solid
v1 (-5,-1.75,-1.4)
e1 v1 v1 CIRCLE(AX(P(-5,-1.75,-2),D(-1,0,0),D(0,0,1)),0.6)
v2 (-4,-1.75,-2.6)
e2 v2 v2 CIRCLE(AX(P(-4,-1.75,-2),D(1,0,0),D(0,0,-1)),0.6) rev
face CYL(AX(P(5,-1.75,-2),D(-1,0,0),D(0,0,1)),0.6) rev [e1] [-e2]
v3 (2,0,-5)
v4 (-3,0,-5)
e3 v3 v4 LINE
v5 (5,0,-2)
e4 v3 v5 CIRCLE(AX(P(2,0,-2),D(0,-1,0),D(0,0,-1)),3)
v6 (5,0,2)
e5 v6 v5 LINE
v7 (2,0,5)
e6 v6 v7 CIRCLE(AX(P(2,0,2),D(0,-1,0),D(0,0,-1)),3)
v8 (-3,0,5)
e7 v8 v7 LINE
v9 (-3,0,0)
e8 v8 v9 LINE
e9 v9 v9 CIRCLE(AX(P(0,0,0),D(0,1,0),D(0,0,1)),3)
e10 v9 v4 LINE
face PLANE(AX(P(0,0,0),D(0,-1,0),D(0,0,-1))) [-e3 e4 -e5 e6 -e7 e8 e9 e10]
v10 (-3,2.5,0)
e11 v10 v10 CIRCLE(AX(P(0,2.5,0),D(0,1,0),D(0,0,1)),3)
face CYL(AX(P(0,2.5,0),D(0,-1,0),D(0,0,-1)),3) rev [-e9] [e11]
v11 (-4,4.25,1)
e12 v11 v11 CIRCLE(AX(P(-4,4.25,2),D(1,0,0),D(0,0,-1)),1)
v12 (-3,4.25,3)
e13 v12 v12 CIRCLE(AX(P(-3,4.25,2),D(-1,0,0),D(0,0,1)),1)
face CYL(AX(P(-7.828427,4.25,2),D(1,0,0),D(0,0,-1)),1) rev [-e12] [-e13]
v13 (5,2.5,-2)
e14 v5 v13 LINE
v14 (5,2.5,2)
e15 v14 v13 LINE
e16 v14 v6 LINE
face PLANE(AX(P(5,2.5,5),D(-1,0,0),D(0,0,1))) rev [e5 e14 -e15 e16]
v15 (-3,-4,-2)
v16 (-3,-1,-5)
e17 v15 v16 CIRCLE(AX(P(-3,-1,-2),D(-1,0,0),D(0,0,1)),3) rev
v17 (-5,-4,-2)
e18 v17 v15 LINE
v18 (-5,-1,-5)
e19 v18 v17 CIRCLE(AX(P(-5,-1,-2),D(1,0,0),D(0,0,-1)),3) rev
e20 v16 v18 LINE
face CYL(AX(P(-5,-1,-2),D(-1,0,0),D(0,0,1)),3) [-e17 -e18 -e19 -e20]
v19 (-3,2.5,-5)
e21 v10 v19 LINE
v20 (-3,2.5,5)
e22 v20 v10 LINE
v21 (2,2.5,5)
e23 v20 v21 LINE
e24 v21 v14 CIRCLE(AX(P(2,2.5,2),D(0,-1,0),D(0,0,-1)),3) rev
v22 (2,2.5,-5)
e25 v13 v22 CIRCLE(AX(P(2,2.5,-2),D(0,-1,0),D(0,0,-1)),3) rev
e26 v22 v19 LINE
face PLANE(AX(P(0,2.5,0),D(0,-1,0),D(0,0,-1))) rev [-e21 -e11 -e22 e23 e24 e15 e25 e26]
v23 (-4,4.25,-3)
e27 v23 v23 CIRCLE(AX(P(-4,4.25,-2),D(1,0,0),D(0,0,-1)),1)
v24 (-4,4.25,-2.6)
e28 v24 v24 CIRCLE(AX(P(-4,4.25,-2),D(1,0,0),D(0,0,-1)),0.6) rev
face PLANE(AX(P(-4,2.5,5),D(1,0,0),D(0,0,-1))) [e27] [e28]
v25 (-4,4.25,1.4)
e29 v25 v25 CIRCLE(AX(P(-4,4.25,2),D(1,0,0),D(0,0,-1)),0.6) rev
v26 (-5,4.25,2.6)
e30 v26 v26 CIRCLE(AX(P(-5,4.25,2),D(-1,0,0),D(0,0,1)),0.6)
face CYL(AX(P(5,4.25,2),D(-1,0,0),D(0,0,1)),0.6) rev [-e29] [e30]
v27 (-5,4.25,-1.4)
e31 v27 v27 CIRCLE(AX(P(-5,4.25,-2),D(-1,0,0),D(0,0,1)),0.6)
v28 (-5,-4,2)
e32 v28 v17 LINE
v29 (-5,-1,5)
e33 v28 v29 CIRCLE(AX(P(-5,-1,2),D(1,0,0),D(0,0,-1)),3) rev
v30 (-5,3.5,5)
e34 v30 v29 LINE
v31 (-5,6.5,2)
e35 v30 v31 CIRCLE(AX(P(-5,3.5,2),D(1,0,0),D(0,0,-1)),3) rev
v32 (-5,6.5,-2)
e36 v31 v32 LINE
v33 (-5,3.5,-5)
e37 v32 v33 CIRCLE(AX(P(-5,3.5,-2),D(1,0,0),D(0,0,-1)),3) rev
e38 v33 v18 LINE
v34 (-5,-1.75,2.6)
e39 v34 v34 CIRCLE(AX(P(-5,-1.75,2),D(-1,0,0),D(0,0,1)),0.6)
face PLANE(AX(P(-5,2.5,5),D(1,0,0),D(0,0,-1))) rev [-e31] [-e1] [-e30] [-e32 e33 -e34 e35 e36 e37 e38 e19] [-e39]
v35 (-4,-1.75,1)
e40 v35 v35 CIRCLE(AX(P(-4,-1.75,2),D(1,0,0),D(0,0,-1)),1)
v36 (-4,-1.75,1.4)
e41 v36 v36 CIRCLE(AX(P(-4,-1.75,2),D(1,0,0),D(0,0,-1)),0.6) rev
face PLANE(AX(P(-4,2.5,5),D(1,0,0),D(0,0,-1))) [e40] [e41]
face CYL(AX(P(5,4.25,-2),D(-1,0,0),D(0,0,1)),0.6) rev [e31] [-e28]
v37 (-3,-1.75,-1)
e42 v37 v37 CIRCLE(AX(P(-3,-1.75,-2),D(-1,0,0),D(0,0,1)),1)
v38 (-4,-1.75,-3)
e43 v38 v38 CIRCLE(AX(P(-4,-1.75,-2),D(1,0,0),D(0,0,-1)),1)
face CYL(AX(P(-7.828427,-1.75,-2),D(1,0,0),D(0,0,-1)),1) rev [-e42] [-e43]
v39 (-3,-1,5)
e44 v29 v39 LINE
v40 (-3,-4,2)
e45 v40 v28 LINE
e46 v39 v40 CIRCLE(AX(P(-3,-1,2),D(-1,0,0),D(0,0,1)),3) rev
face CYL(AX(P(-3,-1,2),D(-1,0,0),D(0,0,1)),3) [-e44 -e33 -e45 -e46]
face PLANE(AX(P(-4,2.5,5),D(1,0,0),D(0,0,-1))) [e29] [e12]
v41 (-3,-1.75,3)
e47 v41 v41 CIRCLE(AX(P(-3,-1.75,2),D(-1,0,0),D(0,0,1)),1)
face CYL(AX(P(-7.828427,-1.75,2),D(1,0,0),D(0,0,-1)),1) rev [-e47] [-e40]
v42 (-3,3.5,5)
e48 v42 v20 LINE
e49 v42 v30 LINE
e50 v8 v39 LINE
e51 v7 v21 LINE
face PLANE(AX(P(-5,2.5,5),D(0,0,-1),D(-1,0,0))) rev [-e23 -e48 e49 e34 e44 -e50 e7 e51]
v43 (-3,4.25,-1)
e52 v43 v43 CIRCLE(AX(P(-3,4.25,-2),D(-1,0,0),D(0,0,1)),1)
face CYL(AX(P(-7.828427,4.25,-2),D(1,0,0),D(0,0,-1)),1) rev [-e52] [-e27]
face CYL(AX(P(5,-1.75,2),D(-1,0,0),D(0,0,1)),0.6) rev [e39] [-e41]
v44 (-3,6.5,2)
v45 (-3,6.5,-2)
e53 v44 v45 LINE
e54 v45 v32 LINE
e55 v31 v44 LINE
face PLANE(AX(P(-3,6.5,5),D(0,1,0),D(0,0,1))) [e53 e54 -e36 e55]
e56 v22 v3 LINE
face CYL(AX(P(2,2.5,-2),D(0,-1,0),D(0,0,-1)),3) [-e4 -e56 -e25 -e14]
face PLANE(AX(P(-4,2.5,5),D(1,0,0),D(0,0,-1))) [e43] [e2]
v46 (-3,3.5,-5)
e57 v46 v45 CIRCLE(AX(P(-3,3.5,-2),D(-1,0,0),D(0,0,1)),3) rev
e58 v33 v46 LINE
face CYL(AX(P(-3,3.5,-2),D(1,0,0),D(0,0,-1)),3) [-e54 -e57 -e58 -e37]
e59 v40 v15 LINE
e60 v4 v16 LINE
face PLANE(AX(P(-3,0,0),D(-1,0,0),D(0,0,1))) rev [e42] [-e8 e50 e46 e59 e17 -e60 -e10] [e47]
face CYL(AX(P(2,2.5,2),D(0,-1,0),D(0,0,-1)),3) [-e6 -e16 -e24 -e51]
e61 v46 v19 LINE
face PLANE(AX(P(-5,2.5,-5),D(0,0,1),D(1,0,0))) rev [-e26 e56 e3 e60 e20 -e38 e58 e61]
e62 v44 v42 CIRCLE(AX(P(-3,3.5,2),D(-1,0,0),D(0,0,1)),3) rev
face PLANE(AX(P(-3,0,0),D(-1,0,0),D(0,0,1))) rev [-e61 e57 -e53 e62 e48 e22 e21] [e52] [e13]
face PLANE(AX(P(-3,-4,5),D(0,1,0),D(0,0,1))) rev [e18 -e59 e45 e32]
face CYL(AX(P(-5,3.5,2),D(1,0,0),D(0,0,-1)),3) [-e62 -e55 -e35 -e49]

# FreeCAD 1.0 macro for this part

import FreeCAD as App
import Part
import Sketcher
from FreeCAD import Vector
Q = App.Units.Quantity


def edges_at(feature, points):
    """Names of the edges that pass closest to the given points."""
    edges = feature.Shape.Edges
    near = lambda p: min(range(len(edges)), key=lambda i: edges[i].distToShape(Part.Vertex(*p))[0])
    return sorted({f"Edge{near(p) + 1}" for p in points})

doc = App.newDocument("Part")
params = doc.addObject("Spreadsheet::Sheet", "Params")
for row, (alias, value) in enumerate([
    ("sketch1_diameter", "6 mm"),
    ("sketch1_width", "10 mm"),
    ("pad1_length", "2.5 mm"),
    ("sketch2_height", "10 mm"),
    ("sketch2_width", "10.5 mm"),
    ("pad2_length", "2 mm"),
    ("sketch3_diameter", "1.2 mm"),
    ("sketch4_diameter", "2 mm"),
    ("pocket2_length", "1 mm"),
    ("fillet_radius", "3 mm"),
    ("fillet2_radius", "3 mm"),
], start=1):
    params.set(f"A{row}", alias)
    params.set(f"B{row}", "=" + value)
    params.setAlias(f"B{row}", alias)

body = doc.addObject("PartDesign::Body", "Body")

# Sketch on XZ plane
sketch1 = body.newObject("Sketcher::SketchObject", "Sketch")
sketch1.AttachmentSupport = (doc.getObject("XZ_Plane"), [""])
sketch1.MapMode = "FlatFace"
sketch1.addGeometry([
    Part.LineSegment(Vector(-5, -5, 0), Vector(-5, 5, 0)),  # 0
    Part.LineSegment(Vector(-5, 5, 0), Vector(5, 5, 0)),  # 1
    Part.LineSegment(Vector(5, 5, 0), Vector(5, -5, 0)),  # 2
    Part.LineSegment(Vector(5, -5, 0), Vector(-5, -5, 0)),  # 3
    Part.Circle(Vector(0, 0, 0), Vector(0, 0, 1), 3),  # 4
], False)
sketch1.addConstraint([
    Sketcher.Constraint("Coincident", 0, 2, 1, 1),
    Sketcher.Constraint("Coincident", 1, 2, 2, 1),
    Sketcher.Constraint("Coincident", 2, 2, 3, 1),
    Sketcher.Constraint("Coincident", 3, 2, 0, 1),
    Sketcher.Constraint("Vertical", 0),
    Sketcher.Constraint("Horizontal", 1),
    Sketcher.Constraint("Vertical", 2),
    Sketcher.Constraint("Horizontal", 3),
    Sketcher.Constraint("Coincident", 4, 3, -1, 1),
    Sketcher.Constraint("Symmetric", 0, 2, 2, 2, -1, 1),
    Sketcher.Constraint("Equal", 3, 0),
    Sketcher.Constraint("Diameter", 4, Q("6 mm")),
    Sketcher.Constraint("DistanceX", 1, 1, 1, 2, Q("10 mm")),
])
sketch1.setExpression("Constraints[11]", "Params.sketch1_diameter")
sketch1.setExpression("Constraints[12]", "Params.sketch1_width")
pad1 = body.newObject("PartDesign::Pad", "Pad")
pad1.Profile = sketch1
pad1.setExpression("Length", "Params.pad1_length")
pad1.Reversed = True

# Sketch on YZ plane
sketch2 = body.newObject("Sketcher::SketchObject", "Sketch001")
sketch2.AttachmentSupport = (doc.getObject("YZ_Plane"), [""])
sketch2.MapMode = "FlatFace"
sketch2.AttachmentOffset = App.Placement(Vector(0, 0, -5), App.Rotation())
sketch2.addGeometry([
    Part.LineSegment(Vector(6.5, -5, 0), Vector(-4, -5, 0)),
    Part.LineSegment(Vector(-4, -5, 0), Vector(-4, 5, 0)),
    Part.LineSegment(Vector(-4, 5, 0), Vector(6.5, 5, 0)),
    Part.LineSegment(Vector(6.5, 5, 0), Vector(6.5, -5, 0)),
], False)
sketch2.addConstraint([
    Sketcher.Constraint("Coincident", 0, 2, 1, 1),
    Sketcher.Constraint("Coincident", 1, 2, 2, 1),
    Sketcher.Constraint("Coincident", 2, 2, 3, 1),
    Sketcher.Constraint("Coincident", 3, 2, 0, 1),
    Sketcher.Constraint("Horizontal", 0),
    Sketcher.Constraint("Vertical", 1),
    Sketcher.Constraint("Horizontal", 2),
    Sketcher.Constraint("Vertical", 3),
    Sketcher.Constraint("DistanceY", 1, 1, 1, 2, Q("10 mm")),
    Sketcher.Constraint("DistanceX", 0, 2, 0, 1, Q("10.5 mm")),
    Sketcher.Constraint("DistanceX", 0, 2, -1, 1, Q("4 mm")),
    Sketcher.Constraint("DistanceY", 0, 2, -1, 1, Q("5 mm")),
])
sketch2.setExpression("Constraints[8]", "Params.sketch2_height")
sketch2.setExpression("Constraints[9]", "Params.sketch2_width")
pad2 = body.newObject("PartDesign::Pad", "Pad001")
pad2.Profile = sketch2
pad2.setExpression("Length", "Params.pad2_length")

# Sketch on YZ plane
sketch3 = body.newObject("Sketcher::SketchObject", "Sketch002")
sketch3.AttachmentSupport = (doc.getObject("YZ_Plane"), [""])
sketch3.MapMode = "FlatFace"
sketch3.AttachmentOffset = App.Placement(Vector(0, 0, -5), App.Rotation())
sketch3.addGeometry([
    Part.Circle(Vector(4.25, -2, 0), Vector(0, 0, 1), 0.6),
    Part.Circle(Vector(4.25, 2, 0), Vector(0, 0, 1), 0.6),
    Part.Circle(Vector(-1.75, -2, 0), Vector(0, 0, 1), 0.6),
    Part.Circle(Vector(-1.75, 2, 0), Vector(0, 0, 1), 0.6),
], False)
sketch3.addConstraint([
    Sketcher.Constraint("Equal", 0, 1),
    Sketcher.Constraint("Equal", 1, 2),
    Sketcher.Constraint("Equal", 2, 3),
    Sketcher.Constraint("Symmetric", 0, 3, 1, 3, -1),
    Sketcher.Constraint("Symmetric", 2, 3, 3, 3, -1),
    Sketcher.Constraint("Horizontal", 0, 3, 2, 3),
    Sketcher.Constraint("Diameter", 0, Q("1.2 mm")),
    Sketcher.Constraint("DistanceY", 0, 3, -1, 1, Q("2 mm")),
    Sketcher.Constraint("DistanceX", 2, 3, 0, 3, Q("6 mm")),
    Sketcher.Constraint("DistanceX", -1, 1, 0, 3, Q("4.25 mm")),
])
sketch3.setExpression("Constraints[6]", "Params.sketch3_diameter")
pocket1 = body.newObject("PartDesign::Pocket", "Pocket")
pocket1.Profile = sketch3
pocket1.Type = "ThroughAll"
pocket1.Reversed = True

# Sketch on YZ plane
sketch4 = body.newObject("Sketcher::SketchObject", "Sketch003")
sketch4.AttachmentSupport = (doc.getObject("YZ_Plane"), [""])
sketch4.MapMode = "FlatFace"
sketch4.AttachmentOffset = App.Placement(Vector(0, 0, -3), App.Rotation())
sketch4.addGeometry([
    Part.Circle(Vector(4.25, -2, 0), Vector(0, 0, 1), 1),
    Part.Circle(Vector(4.25, 2, 0), Vector(0, 0, 1), 1),
    Part.Circle(Vector(-1.75, -2, 0), Vector(0, 0, 1), 1),
    Part.Circle(Vector(-1.75, 2, 0), Vector(0, 0, 1), 1),
], False)
sketch4.addConstraint([
    Sketcher.Constraint("Equal", 0, 1),
    Sketcher.Constraint("Equal", 1, 2),
    Sketcher.Constraint("Equal", 2, 3),
    Sketcher.Constraint("Symmetric", 0, 3, 1, 3, -1),
    Sketcher.Constraint("Symmetric", 2, 3, 3, 3, -1),
    Sketcher.Constraint("Horizontal", 0, 3, 2, 3),
    Sketcher.Constraint("Diameter", 0, Q("2 mm")),
    Sketcher.Constraint("DistanceY", 0, 3, -1, 1, Q("2 mm")),
    Sketcher.Constraint("DistanceX", 2, 3, 0, 3, Q("6 mm")),
    Sketcher.Constraint("DistanceX", -1, 1, 0, 3, Q("4.25 mm")),
])
sketch4.setExpression("Constraints[6]", "Params.sketch4_diameter")
pocket2 = body.newObject("PartDesign::Pocket", "Pocket001")
pocket2.Profile = sketch4
pocket2.setExpression("Length", "Params.pocket2_length")
doc.recompute()

fillet = body.newObject("PartDesign::Fillet", "Fillet")
fillet.Base = (pocket2, edges_at(pocket2, [(5, 1.25, 5), (5, 1.25, -5)]))
fillet.setExpression("Radius", "Params.fillet_radius")
doc.recompute()

fillet2 = body.newObject("PartDesign::Fillet", "Fillet001")
fillet2.Base = (fillet, edges_at(fillet, [
    (-4, 6.5, 5),
    (-4, 6.5, -5),
    (-4, -4, 5),
    (-4, -4, -5),
]))
fillet2.setExpression("Radius", "Params.fillet2_radius")

doc.recompute()
